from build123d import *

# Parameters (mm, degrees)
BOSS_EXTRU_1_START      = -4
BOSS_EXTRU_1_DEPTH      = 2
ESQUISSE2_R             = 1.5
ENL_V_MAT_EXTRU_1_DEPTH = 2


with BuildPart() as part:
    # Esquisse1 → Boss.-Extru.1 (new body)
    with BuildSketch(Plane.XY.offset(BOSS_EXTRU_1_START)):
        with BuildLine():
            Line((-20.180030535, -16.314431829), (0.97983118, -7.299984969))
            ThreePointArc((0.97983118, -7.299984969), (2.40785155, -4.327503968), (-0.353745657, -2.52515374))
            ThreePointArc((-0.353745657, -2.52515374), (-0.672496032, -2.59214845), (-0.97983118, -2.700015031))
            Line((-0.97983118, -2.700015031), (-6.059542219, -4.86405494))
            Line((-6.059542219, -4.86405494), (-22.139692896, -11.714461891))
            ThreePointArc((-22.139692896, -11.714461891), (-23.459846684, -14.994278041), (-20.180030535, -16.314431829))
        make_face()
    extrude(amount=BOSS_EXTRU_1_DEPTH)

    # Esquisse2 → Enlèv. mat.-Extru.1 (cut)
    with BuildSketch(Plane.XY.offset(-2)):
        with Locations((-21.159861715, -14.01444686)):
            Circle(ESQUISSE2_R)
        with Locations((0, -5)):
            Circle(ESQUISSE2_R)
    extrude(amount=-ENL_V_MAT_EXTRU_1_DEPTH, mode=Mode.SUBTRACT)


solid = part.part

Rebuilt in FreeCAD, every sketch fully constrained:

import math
import FreeCAD as App
import Part
import Sketcher

V = App.Vector
Q = App.Units.Quantity

doc = App.newDocument("Part")
body = doc.addObject("PartDesign::Body", "Body")

# Sketch on XY plane
sketch1 = body.newObject("Sketcher::SketchObject", "Sketch")
sketch1.AttachmentSupport = (doc.getObject("XY_Plane"), [""])
sketch1.MapMode = "FlatFace"
sketch1.AttachmentOffset = App.Placement(V(0, 0, -4), App.Rotation())
sketch1.addGeometry([
    Part.LineSegment(V(-20.2, -16.3, 0), V(1, -7.3, 0)),  # 0
    Part.ArcOfCircle(Part.Circle(V(0, -5, 0), V(0, 0, 1), 2.5), math.radians(-67), math.radians(98)),  # 1
    Part.ArcOfCircle(Part.Circle(V(0, -5, 0), V(0, 0, 1), 2.5), math.radians(98.13), math.radians(113.07)),  # 2
    Part.LineSegment(V(-1, -2.7, 0), V(-6.1, -4.9, 0)),  # 3
    Part.LineSegment(V(-6.1, -4.9, 0), V(-22.1, -11.7, 0)),  # 4
    Part.ArcOfCircle(Part.Circle(V(-21.2, -14, 0), V(0, 0, 1), 2.5), math.radians(113), math.radians(293)),  # 5
], False)
sketch1.addConstraint([
    Sketcher.Constraint("Tangent", 0, 2, 1, 1),
    Sketcher.Constraint("Tangent", 1, 2, 2, 1),
    Sketcher.Constraint("Tangent", 2, 2, 3, 1),
    Sketcher.Constraint("Coincident", 3, 2, 4, 1),
    Sketcher.Constraint("Tangent", 4, 2, 5, 1),
    Sketcher.Constraint("Tangent", 5, 2, 0, 1),
    Sketcher.Constraint("Equal", 1, 2),
    Sketcher.Constraint("Equal", 2, 5),
    Sketcher.Constraint("PointOnObject", 1, 3, -2),
    Sketcher.Constraint("Parallel", 0, 3),
    Sketcher.Constraint("Radius", 1, Q("2.5 mm")),
    Sketcher.Constraint("Distance", 0, Q("23 mm")),
    Sketcher.Constraint("DistanceY", 1, 3, -1, 1, Q("5 mm")),
    Sketcher.Constraint("DistanceY", 3, 2, 1, 2, Q("2.338901 mm")),
    Sketcher.Constraint("Distance", 3, Q("5.521461 mm")),
    Sketcher.Constraint("DistanceX", 5, 3, -1, 1, Q("21.159862 mm")),
])
pad1 = body.newObject("PartDesign::Pad", "Pad")
pad1.Profile = sketch1
pad1.Length = 2

# Sketch on XY plane
sketch2 = body.newObject("Sketcher::SketchObject", "Sketch001")
sketch2.AttachmentSupport = (doc.getObject("XY_Plane"), [""])
sketch2.MapMode = "FlatFace"
sketch2.AttachmentOffset = App.Placement(V(0, 0, -2), App.Rotation())
sketch2.addGeometry([
    Part.Circle(V(-21.2, -14, 0), V(0, 0, 1), 1.5),
    Part.Circle(V(0, -5, 0), V(0, 0, 1), 1.5),
], False)
sketch2.addConstraint([
    Sketcher.Constraint("Equal", 0, 1),
    Sketcher.Constraint("PointOnObject", 1, 3, -2),
    Sketcher.Constraint("Diameter", 0, Q("3 mm")),
    Sketcher.Constraint("DistanceY", 1, 3, -1, 1, Q("5 mm")),
    Sketcher.Constraint("DistanceX", 0, 3, -1, 1, Q("21.159862 mm")),
    Sketcher.Constraint("DistanceY", 0, 3, -1, 1, Q("14.014447 mm")),
])
pocket1 = body.newObject("PartDesign::Pocket", "Pocket")
pocket1.Profile = sketch2
pocket1.Length = 2

doc.recompute()
